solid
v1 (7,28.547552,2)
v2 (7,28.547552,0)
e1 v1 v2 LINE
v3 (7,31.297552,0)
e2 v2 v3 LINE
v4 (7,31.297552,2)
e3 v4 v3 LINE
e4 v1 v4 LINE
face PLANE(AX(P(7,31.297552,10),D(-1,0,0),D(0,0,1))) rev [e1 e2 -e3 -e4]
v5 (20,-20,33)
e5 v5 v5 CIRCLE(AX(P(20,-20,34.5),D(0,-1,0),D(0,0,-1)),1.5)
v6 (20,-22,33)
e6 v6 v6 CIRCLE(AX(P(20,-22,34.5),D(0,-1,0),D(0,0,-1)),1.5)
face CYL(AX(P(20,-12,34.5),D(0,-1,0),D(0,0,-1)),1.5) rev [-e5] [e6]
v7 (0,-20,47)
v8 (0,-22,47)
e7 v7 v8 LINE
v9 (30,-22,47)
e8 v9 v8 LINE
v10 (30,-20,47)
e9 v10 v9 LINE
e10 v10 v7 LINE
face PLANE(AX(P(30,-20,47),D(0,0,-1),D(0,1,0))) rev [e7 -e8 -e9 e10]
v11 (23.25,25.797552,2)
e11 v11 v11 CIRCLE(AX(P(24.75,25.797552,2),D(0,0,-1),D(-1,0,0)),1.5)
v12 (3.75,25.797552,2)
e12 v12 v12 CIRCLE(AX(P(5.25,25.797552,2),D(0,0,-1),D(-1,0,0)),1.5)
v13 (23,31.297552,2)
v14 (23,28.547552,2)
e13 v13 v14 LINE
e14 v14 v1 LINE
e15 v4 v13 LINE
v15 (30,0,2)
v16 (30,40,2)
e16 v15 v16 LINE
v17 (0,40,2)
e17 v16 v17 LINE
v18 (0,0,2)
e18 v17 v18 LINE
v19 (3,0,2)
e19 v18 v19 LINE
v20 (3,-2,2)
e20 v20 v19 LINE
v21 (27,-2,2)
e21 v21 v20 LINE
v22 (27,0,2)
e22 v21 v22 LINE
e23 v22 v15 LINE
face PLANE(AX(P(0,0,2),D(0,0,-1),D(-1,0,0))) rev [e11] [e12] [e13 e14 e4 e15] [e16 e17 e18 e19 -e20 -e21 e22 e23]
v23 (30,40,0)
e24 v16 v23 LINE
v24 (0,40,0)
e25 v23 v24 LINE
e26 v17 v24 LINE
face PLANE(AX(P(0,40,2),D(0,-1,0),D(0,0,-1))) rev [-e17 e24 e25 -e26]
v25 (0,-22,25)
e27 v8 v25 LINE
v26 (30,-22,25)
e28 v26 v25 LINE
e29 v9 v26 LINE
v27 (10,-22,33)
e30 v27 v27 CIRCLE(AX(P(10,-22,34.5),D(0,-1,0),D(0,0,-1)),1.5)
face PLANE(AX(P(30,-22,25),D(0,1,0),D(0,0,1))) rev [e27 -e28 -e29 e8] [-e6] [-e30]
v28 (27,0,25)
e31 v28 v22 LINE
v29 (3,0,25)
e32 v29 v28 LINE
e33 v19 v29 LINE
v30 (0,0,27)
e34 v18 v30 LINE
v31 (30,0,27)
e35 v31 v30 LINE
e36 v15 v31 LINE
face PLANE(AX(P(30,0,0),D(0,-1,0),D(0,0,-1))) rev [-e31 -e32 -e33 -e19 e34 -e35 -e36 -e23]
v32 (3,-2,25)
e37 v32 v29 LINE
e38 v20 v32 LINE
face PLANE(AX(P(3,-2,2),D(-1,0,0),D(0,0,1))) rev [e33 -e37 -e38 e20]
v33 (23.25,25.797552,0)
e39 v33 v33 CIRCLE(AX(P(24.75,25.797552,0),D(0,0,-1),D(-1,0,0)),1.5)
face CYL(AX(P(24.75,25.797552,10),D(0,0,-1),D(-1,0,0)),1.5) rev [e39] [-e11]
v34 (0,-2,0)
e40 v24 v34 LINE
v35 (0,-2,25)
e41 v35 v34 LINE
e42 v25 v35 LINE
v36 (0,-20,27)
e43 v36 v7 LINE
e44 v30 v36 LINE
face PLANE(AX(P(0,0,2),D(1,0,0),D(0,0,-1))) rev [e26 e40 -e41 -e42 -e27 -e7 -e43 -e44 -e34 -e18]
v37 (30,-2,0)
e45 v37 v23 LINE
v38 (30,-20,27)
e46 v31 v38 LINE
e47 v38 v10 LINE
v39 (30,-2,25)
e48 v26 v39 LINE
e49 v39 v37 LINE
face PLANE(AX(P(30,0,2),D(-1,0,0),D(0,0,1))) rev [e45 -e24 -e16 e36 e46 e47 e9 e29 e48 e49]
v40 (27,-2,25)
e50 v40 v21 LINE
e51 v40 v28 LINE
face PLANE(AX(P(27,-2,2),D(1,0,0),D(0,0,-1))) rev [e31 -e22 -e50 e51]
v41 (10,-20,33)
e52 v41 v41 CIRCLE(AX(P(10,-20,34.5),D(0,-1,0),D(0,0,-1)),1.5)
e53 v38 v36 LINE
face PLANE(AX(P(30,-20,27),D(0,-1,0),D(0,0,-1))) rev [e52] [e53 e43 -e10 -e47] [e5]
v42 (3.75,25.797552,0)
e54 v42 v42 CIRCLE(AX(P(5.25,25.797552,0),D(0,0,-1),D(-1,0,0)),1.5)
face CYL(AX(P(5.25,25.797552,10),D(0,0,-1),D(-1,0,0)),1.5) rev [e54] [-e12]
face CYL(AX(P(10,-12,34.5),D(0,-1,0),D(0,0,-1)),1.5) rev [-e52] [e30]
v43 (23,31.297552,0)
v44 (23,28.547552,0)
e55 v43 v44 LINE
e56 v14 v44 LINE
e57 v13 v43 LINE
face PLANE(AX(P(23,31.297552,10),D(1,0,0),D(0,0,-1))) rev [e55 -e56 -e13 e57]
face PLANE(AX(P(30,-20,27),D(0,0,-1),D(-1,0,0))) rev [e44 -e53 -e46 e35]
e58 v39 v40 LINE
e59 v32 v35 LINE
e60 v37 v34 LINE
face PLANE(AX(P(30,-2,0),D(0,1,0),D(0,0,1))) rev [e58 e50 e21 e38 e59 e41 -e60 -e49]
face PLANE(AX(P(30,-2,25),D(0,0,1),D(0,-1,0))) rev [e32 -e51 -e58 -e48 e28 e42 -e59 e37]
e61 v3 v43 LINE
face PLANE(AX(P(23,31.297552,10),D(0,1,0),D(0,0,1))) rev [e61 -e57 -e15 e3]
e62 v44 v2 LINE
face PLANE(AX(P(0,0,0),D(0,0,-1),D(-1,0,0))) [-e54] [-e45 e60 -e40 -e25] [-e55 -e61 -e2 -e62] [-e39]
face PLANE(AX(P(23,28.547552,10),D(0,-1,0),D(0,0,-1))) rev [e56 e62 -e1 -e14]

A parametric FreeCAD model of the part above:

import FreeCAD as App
import Part
import Sketcher
Q = App.Units.Quantity

doc = App.newDocument("Part")
params = doc.addObject("Spreadsheet::Sheet", "Params")
for row, (alias, value) in enumerate([
    ("sketch1_width", "30 mm"),
    ("sketch1_height", "40 mm"),
    ("pad1_length", "2 mm"),
    ("sketch2_width", "2 mm"),
    ("sketch2_width2", "20 mm"),
    ("sketch2_height", "22 mm"),
    ("sketch2_height2", "25 mm"),
    ("pad2_length", "30 mm"),
    ("sketch3_width", "24 mm"),
    ("sketch3_height", "23 mm"),
    ("pocket1_length", "2 mm"),
    ("sketch4_diameter", "3 mm"),
    ("sketch4_width", "16 mm"),
    ("sketch4_height", "2.75 mm"),
    ("pocket2_length", "10 mm"),
    ("sketch5_diameter", "3 mm"),
    ("pocket3_length", "10 mm"),
], start=1):
    params.set(f"A{row}", alias)
    params.set(f"B{row}", "=" + value)
    params.setAlias(f"B{row}", alias)

body = doc.addObject("PartDesign::Body", "Body")

# Sketch on XY plane
sketch1 = body.newObject("Sketcher::SketchObject", "Sketch")
sketch1.AttachmentSupport = (doc.getObject("XY_Plane"), [""])
sketch1.MapMode = "FlatFace"
sketch1.addGeometry([
    Part.LineSegment(App.Vector(0, 40, 0), App.Vector(0, 0, 0)),
    Part.LineSegment(App.Vector(0, 0, 0), App.Vector(30, 0, 0)),
    Part.LineSegment(App.Vector(30, 0, 0), App.Vector(30, 40, 0)),
    Part.LineSegment(App.Vector(30, 40, 0), App.Vector(0, 40, 0)),
], False)
sketch1.addConstraint([
    Sketcher.Constraint("Coincident", 0, 2, 1, 1),
    Sketcher.Constraint("Coincident", 1, 2, 2, 1),
    Sketcher.Constraint("Coincident", 2, 2, 3, 1),
    Sketcher.Constraint("Coincident", 3, 2, 0, 1),
    Sketcher.Constraint("Vertical", 0),
    Sketcher.Constraint("Horizontal", 1),
    Sketcher.Constraint("Vertical", 2),
    Sketcher.Constraint("Horizontal", 3),
    Sketcher.Constraint("Coincident", 0, 2, -1, 1),
    Sketcher.Constraint("DistanceX", 1, 1, 1, 2, Q("30 mm")),
    Sketcher.Constraint("DistanceY", 0, 2, 0, 1, Q("40 mm")),
])
sketch1.setExpression("Constraints[9]", "Params.sketch1_width")
sketch1.setExpression("Constraints[10]", "Params.sketch1_height")
pad1 = body.newObject("PartDesign::Pad", "Pad")
pad1.Profile = sketch1
pad1.setExpression("Length", "Params.pad1_length")

# Sketch on YZ plane
sketch2 = body.newObject("Sketcher::SketchObject", "Sketch001")
sketch2.AttachmentSupport = (doc.getObject("YZ_Plane"), [""])
sketch2.MapMode = "FlatFace"
sketch2.addGeometry([
    Part.LineSegment(App.Vector(-20, 27, 0), App.Vector(-20, 47, 0)),  # 0
    Part.LineSegment(App.Vector(-20, 47, 0), App.Vector(-22, 47, 0)),  # 1
    Part.LineSegment(App.Vector(-22, 47, 0), App.Vector(-22, 25, 0)),  # 2
    Part.LineSegment(App.Vector(-22, 25, 0), App.Vector(-2, 25, 0)),  # 3
    Part.LineSegment(App.Vector(-2, 25, 0), App.Vector(-2, 0, 0)),  # 4
    Part.LineSegment(App.Vector(-2, 0, 0), App.Vector(0, 0, 0)),  # 5
    Part.LineSegment(App.Vector(0, 0, 0), App.Vector(0, 27, 0)),  # 6
    Part.LineSegment(App.Vector(0, 27, 0), App.Vector(-20, 27, 0)),  # 7
], False)
sketch2.addConstraint([
    Sketcher.Constraint("Coincident", 0, 2, 1, 1),
    Sketcher.Constraint("Coincident", 1, 2, 2, 1),
    Sketcher.Constraint("Coincident", 2, 2, 3, 1),
    Sketcher.Constraint("Coincident", 3, 2, 4, 1),
    Sketcher.Constraint("Coincident", 4, 2, 5, 1),
    Sketcher.Constraint("Coincident", 5, 2, 6, 1),
    Sketcher.Constraint("Coincident", 6, 2, 7, 1),
    Sketcher.Constraint("Coincident", 7, 2, 0, 1),
    Sketcher.Constraint("Vertical", 0),
    Sketcher.Constraint("Horizontal", 1),
    Sketcher.Constraint("Vertical", 2),
    Sketcher.Constraint("Horizontal", 3),
    Sketcher.Constraint("Vertical", 4),
    Sketcher.Constraint("Horizontal", 5),
    Sketcher.Constraint("Vertical", 6),
    Sketcher.Constraint("Horizontal", 7),
    Sketcher.Constraint("Coincident", 5, 2, -1, 1),
    Sketcher.Constraint("Equal", 1, 5),
    Sketcher.Constraint("Equal", 7, 0),
    Sketcher.Constraint("DistanceX", 1, 2, 1, 1, Q("2 mm")),
    Sketcher.Constraint("DistanceX", 3, 1, 3, 2, Q("20 mm")),
    Sketcher.Constraint("DistanceY", 2, 2, 2, 1, Q("22 mm")),
    Sketcher.Constraint("DistanceY", 4, 2, 4, 1, Q("25 mm")),
])
sketch2.setExpression("Constraints[19]", "Params.sketch2_width")
sketch2.setExpression("Constraints[20]", "Params.sketch2_width2")
sketch2.setExpression("Constraints[21]", "Params.sketch2_height")
sketch2.setExpression("Constraints[22]", "Params.sketch2_height2")
pad2 = body.newObject("PartDesign::Pad", "Pad001")
pad2.Profile = sketch2
pad2.setExpression("Length", "Params.pad2_length")

# Sketch on XZ plane
sketch3 = body.newObject("Sketcher::SketchObject", "Sketch002")
sketch3.AttachmentSupport = (doc.getObject("XZ_Plane"), [""])
sketch3.MapMode = "FlatFace"
sketch3.addGeometry([
    Part.LineSegment(App.Vector(3, 2, 0), App.Vector(3, 25, 0)),
    Part.LineSegment(App.Vector(3, 25, 0), App.Vector(27, 25, 0)),
    Part.LineSegment(App.Vector(27, 25, 0), App.Vector(27, 2, 0)),
    Part.LineSegment(App.Vector(27, 2, 0), App.Vector(3, 2, 0)),
], False)
sketch3.addConstraint([
    Sketcher.Constraint("Coincident", 0, 2, 1, 1),
    Sketcher.Constraint("Coincident", 1, 2, 2, 1),
    Sketcher.Constraint("Coincident", 2, 2, 3, 1),
    Sketcher.Constraint("Coincident", 3, 2, 0, 1),
    Sketcher.Constraint("Vertical", 0),
    Sketcher.Constraint("Horizontal", 1),
    Sketcher.Constraint("Vertical", 2),
    Sketcher.Constraint("Horizontal", 3),
    Sketcher.Constraint("DistanceX", 1, 1, 1, 2, Q("24 mm")),
    Sketcher.Constraint("DistanceY", 0, 1, 0, 2, Q("23 mm")),
    Sketcher.Constraint("DistanceX", -1, 1, 0, 2, Q("3 mm")),
    Sketcher.Constraint("DistanceY", -1, 1, 0, 2, Q("25 mm")),
])
sketch3.setExpression("Constraints[8]", "Params.sketch3_width")
sketch3.setExpression("Constraints[9]", "Params.sketch3_height")
pocket1 = body.newObject("PartDesign::Pocket", "Pocket")
pocket1.Profile = sketch3
pocket1.setExpression("Length", "Params.pocket1_length")
pocket1.Reversed = True

# Sketch on XY plane
sketch4 = body.newObject("Sketcher::SketchObject", "Sketch003")
sketch4.AttachmentSupport = (doc.getObject("XY_Plane"), [""])
sketch4.MapMode = "FlatFace"
sketch4.addGeometry([
    Part.Circle(App.Vector(24.8, 25.8, 0), App.Vector(0, 0, 1), 1.5),  # 0
    Part.Circle(App.Vector(5.2, 25.8, 0), App.Vector(0, 0, 1), 1.5),  # 1
    Part.LineSegment(App.Vector(23, 31.3, 0), App.Vector(23, 28.5, 0)),  # 2
    Part.LineSegment(App.Vector(23, 28.5, 0), App.Vector(7, 28.5, 0)),  # 3
    Part.LineSegment(App.Vector(7, 28.5, 0), App.Vector(7, 31.3, 0)),  # 4
    Part.LineSegment(App.Vector(7, 31.3, 0), App.Vector(23, 31.3, 0)),  # 5
], False)
sketch4.addConstraint([
    Sketcher.Constraint("Coincident", 2, 2, 3, 1),
    Sketcher.Constraint("Coincident", 3, 2, 4, 1),
    Sketcher.Constraint("Coincident", 4, 2, 5, 1),
    Sketcher.Constraint("Coincident", 5, 2, 2, 1),
    Sketcher.Constraint("Vertical", 2),
    Sketcher.Constraint("Horizontal", 3),
    Sketcher.Constraint("Vertical", 4),
    Sketcher.Constraint("Horizontal", 5),
    Sketcher.Constraint("Equal", 0, 1),
    Sketcher.Constraint("Horizontal", 0, 3, 1, 3),
    Sketcher.Constraint("Diameter", 0, Q("3 mm")),
    Sketcher.Constraint("DistanceX", 3, 2, 3, 1, Q("16 mm")),
    Sketcher.Constraint("DistanceX", -1, 1, 2, 2, Q("23 mm")),
    Sketcher.Constraint("DistanceY", 2, 2, 2, 1, Q("2.75 mm")),
    Sketcher.Constraint("DistanceX", 1, 3, 0, 3, Q("19.5 mm")),
    Sketcher.Constraint("DistanceY", 1, 3, 4, 2, Q("5.5 mm")),
    Sketcher.Constraint("DistanceX", -1, 1, 0, 3, Q("24.75 mm")),
    Sketcher.Constraint("DistanceY", -1, 1, 0, 3, Q("25.797552 mm")),
])
sketch4.setExpression("Constraints[10]", "Params.sketch4_diameter")
sketch4.setExpression("Constraints[11]", "Params.sketch4_width")
sketch4.setExpression("Constraints[13]", "Params.sketch4_height")
pocket2 = body.newObject("PartDesign::Pocket", "Pocket001")
pocket2.Profile = sketch4
pocket2.setExpression("Length", "Params.pocket2_length")
pocket2.Reversed = True

# Sketch on XZ plane
sketch5 = body.newObject("Sketcher::SketchObject", "Sketch004")
sketch5.AttachmentSupport = (doc.getObject("XZ_Plane"), [""])
sketch5.MapMode = "FlatFace"
sketch5.AttachmentOffset = App.Placement(App.Vector(0, 0, 22), App.Rotation())
sketch5.addGeometry([
    Part.Circle(App.Vector(20, 34.5, 0), App.Vector(0, 0, 1), 1.5),
    Part.Circle(App.Vector(10, 34.5, 0), App.Vector(0, 0, 1), 1.5),
], False)
sketch5.addConstraint([
    Sketcher.Constraint("Equal", 0, 1),
    Sketcher.Constraint("Horizontal", 0, 3, 1, 3),
    Sketcher.Constraint("Diameter", 0, Q("3 mm")),
    Sketcher.Constraint("DistanceX", -1, 1, 0, 3, Q("20 mm")),
    Sketcher.Constraint("DistanceX", -1, 1, 1, 3, Q("10 mm")),
    Sketcher.Constraint("DistanceY", -1, 1, 0, 3, Q("34.5 mm")),
])
sketch5.setExpression("Constraints[2]", "Params.sketch5_diameter")
pocket3 = body.newObject("PartDesign::Pocket", "Pocket002")
pocket3.Profile = sketch5
pocket3.setExpression("Length", "Params.pocket3_length")

doc.recompute()
